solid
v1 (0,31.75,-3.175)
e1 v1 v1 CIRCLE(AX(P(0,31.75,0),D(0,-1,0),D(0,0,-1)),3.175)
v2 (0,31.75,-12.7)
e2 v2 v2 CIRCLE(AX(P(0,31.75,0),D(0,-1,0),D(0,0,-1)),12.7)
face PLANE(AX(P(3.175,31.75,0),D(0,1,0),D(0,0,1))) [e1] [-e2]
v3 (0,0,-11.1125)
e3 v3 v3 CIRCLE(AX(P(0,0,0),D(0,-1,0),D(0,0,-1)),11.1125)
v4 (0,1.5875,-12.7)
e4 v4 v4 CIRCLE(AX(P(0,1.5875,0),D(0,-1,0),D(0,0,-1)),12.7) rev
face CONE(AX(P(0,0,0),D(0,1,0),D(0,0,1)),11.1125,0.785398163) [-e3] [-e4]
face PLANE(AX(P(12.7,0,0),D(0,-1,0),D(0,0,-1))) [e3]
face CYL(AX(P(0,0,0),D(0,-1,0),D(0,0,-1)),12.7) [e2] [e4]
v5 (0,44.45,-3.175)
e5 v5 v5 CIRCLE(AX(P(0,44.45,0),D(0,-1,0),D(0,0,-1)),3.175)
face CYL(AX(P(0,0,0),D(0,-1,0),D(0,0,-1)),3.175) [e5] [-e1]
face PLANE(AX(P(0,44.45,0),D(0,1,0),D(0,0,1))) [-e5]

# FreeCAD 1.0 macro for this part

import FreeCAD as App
import Part
import Sketcher

V = App.Vector
Q = App.Units.Quantity


def edges_at(feature, points):
    """Names of the edges that pass closest to the given points."""
    edges = feature.Shape.Edges
    near = lambda p: min(range(len(edges)), key=lambda i: edges[i].distToShape(Part.Vertex(*p))[0])
    return sorted({f"Edge{near(p) + 1}" for p in points})

doc = App.newDocument("Part")
body = doc.addObject("PartDesign::Body", "Body")

sketch1 = doc.addObject("Sketcher::SketchObject", "Sketch")
body.addObject(sketch1)
sketch1.AttachmentSupport = (doc.XY_Plane, [""])
sketch1.MapMode = "FlatFace"
sketch1.addGeometry([
    Part.LineSegment(V(0, 44.5, 0), V(0, 0, 0)),
    Part.LineSegment(V(0, 0, 0), V(12.7, 0, 0)),
    Part.LineSegment(V(12.7, 0, 0), V(12.7, 31.8, 0)),
    Part.LineSegment(V(12.7, 31.8, 0), V(3.2, 31.8, 0)),
    Part.LineSegment(V(3.2, 31.8, 0), V(3.2, 44.5, 0)),
    Part.LineSegment(V(3.2, 44.5, 0), V(0, 44.5, 0)),
], False)
sketch1.addConstraint([
    Sketcher.Constraint("Coincident", 0, 2, 1, 1),
    Sketcher.Constraint("Coincident", 1, 2, 2, 1),
    Sketcher.Constraint("Coincident", 2, 2, 3, 1),
    Sketcher.Constraint("Coincident", 3, 2, 4, 1),
    Sketcher.Constraint("Coincident", 4, 2, 5, 1),
    Sketcher.Constraint("Coincident", 5, 2, 0, 1),
    Sketcher.Constraint("Vertical", 0),
    Sketcher.Constraint("Horizontal", 1),
    Sketcher.Constraint("Vertical", 2),
    Sketcher.Constraint("Horizontal", 3),
    Sketcher.Constraint("Vertical", 4),
    Sketcher.Constraint("Horizontal", 5),
    Sketcher.Constraint("Coincident", 0, 2, -1, 1),
    Sketcher.Constraint("Equal", 1, 4),
    Sketcher.Constraint("DistanceX", 1, 1, 1, 2, Q("0.5 in")),
    Sketcher.Constraint("DistanceY", 0, 2, 0, 1, Q("1.75 in")),
    Sketcher.Constraint("DistanceX", 3, 2, 3, 1, Q("0.375 in")),
])
revolution = doc.addObject("PartDesign::Revolution", "Revolution")
body.addObject(revolution)
revolution.Profile = sketch1
revolution.ReferenceAxis = (sketch1, ["V_Axis"])
revolution.Angle = 360
doc.recompute()

chamfer = doc.addObject("PartDesign::Chamfer", "Chamfer")
body.addObject(chamfer)
chamfer.Base = (revolution, edges_at(revolution, [(0, 0, 12.7)]))
chamfer.Size = Q("0.0625 in")

doc.recompute()
